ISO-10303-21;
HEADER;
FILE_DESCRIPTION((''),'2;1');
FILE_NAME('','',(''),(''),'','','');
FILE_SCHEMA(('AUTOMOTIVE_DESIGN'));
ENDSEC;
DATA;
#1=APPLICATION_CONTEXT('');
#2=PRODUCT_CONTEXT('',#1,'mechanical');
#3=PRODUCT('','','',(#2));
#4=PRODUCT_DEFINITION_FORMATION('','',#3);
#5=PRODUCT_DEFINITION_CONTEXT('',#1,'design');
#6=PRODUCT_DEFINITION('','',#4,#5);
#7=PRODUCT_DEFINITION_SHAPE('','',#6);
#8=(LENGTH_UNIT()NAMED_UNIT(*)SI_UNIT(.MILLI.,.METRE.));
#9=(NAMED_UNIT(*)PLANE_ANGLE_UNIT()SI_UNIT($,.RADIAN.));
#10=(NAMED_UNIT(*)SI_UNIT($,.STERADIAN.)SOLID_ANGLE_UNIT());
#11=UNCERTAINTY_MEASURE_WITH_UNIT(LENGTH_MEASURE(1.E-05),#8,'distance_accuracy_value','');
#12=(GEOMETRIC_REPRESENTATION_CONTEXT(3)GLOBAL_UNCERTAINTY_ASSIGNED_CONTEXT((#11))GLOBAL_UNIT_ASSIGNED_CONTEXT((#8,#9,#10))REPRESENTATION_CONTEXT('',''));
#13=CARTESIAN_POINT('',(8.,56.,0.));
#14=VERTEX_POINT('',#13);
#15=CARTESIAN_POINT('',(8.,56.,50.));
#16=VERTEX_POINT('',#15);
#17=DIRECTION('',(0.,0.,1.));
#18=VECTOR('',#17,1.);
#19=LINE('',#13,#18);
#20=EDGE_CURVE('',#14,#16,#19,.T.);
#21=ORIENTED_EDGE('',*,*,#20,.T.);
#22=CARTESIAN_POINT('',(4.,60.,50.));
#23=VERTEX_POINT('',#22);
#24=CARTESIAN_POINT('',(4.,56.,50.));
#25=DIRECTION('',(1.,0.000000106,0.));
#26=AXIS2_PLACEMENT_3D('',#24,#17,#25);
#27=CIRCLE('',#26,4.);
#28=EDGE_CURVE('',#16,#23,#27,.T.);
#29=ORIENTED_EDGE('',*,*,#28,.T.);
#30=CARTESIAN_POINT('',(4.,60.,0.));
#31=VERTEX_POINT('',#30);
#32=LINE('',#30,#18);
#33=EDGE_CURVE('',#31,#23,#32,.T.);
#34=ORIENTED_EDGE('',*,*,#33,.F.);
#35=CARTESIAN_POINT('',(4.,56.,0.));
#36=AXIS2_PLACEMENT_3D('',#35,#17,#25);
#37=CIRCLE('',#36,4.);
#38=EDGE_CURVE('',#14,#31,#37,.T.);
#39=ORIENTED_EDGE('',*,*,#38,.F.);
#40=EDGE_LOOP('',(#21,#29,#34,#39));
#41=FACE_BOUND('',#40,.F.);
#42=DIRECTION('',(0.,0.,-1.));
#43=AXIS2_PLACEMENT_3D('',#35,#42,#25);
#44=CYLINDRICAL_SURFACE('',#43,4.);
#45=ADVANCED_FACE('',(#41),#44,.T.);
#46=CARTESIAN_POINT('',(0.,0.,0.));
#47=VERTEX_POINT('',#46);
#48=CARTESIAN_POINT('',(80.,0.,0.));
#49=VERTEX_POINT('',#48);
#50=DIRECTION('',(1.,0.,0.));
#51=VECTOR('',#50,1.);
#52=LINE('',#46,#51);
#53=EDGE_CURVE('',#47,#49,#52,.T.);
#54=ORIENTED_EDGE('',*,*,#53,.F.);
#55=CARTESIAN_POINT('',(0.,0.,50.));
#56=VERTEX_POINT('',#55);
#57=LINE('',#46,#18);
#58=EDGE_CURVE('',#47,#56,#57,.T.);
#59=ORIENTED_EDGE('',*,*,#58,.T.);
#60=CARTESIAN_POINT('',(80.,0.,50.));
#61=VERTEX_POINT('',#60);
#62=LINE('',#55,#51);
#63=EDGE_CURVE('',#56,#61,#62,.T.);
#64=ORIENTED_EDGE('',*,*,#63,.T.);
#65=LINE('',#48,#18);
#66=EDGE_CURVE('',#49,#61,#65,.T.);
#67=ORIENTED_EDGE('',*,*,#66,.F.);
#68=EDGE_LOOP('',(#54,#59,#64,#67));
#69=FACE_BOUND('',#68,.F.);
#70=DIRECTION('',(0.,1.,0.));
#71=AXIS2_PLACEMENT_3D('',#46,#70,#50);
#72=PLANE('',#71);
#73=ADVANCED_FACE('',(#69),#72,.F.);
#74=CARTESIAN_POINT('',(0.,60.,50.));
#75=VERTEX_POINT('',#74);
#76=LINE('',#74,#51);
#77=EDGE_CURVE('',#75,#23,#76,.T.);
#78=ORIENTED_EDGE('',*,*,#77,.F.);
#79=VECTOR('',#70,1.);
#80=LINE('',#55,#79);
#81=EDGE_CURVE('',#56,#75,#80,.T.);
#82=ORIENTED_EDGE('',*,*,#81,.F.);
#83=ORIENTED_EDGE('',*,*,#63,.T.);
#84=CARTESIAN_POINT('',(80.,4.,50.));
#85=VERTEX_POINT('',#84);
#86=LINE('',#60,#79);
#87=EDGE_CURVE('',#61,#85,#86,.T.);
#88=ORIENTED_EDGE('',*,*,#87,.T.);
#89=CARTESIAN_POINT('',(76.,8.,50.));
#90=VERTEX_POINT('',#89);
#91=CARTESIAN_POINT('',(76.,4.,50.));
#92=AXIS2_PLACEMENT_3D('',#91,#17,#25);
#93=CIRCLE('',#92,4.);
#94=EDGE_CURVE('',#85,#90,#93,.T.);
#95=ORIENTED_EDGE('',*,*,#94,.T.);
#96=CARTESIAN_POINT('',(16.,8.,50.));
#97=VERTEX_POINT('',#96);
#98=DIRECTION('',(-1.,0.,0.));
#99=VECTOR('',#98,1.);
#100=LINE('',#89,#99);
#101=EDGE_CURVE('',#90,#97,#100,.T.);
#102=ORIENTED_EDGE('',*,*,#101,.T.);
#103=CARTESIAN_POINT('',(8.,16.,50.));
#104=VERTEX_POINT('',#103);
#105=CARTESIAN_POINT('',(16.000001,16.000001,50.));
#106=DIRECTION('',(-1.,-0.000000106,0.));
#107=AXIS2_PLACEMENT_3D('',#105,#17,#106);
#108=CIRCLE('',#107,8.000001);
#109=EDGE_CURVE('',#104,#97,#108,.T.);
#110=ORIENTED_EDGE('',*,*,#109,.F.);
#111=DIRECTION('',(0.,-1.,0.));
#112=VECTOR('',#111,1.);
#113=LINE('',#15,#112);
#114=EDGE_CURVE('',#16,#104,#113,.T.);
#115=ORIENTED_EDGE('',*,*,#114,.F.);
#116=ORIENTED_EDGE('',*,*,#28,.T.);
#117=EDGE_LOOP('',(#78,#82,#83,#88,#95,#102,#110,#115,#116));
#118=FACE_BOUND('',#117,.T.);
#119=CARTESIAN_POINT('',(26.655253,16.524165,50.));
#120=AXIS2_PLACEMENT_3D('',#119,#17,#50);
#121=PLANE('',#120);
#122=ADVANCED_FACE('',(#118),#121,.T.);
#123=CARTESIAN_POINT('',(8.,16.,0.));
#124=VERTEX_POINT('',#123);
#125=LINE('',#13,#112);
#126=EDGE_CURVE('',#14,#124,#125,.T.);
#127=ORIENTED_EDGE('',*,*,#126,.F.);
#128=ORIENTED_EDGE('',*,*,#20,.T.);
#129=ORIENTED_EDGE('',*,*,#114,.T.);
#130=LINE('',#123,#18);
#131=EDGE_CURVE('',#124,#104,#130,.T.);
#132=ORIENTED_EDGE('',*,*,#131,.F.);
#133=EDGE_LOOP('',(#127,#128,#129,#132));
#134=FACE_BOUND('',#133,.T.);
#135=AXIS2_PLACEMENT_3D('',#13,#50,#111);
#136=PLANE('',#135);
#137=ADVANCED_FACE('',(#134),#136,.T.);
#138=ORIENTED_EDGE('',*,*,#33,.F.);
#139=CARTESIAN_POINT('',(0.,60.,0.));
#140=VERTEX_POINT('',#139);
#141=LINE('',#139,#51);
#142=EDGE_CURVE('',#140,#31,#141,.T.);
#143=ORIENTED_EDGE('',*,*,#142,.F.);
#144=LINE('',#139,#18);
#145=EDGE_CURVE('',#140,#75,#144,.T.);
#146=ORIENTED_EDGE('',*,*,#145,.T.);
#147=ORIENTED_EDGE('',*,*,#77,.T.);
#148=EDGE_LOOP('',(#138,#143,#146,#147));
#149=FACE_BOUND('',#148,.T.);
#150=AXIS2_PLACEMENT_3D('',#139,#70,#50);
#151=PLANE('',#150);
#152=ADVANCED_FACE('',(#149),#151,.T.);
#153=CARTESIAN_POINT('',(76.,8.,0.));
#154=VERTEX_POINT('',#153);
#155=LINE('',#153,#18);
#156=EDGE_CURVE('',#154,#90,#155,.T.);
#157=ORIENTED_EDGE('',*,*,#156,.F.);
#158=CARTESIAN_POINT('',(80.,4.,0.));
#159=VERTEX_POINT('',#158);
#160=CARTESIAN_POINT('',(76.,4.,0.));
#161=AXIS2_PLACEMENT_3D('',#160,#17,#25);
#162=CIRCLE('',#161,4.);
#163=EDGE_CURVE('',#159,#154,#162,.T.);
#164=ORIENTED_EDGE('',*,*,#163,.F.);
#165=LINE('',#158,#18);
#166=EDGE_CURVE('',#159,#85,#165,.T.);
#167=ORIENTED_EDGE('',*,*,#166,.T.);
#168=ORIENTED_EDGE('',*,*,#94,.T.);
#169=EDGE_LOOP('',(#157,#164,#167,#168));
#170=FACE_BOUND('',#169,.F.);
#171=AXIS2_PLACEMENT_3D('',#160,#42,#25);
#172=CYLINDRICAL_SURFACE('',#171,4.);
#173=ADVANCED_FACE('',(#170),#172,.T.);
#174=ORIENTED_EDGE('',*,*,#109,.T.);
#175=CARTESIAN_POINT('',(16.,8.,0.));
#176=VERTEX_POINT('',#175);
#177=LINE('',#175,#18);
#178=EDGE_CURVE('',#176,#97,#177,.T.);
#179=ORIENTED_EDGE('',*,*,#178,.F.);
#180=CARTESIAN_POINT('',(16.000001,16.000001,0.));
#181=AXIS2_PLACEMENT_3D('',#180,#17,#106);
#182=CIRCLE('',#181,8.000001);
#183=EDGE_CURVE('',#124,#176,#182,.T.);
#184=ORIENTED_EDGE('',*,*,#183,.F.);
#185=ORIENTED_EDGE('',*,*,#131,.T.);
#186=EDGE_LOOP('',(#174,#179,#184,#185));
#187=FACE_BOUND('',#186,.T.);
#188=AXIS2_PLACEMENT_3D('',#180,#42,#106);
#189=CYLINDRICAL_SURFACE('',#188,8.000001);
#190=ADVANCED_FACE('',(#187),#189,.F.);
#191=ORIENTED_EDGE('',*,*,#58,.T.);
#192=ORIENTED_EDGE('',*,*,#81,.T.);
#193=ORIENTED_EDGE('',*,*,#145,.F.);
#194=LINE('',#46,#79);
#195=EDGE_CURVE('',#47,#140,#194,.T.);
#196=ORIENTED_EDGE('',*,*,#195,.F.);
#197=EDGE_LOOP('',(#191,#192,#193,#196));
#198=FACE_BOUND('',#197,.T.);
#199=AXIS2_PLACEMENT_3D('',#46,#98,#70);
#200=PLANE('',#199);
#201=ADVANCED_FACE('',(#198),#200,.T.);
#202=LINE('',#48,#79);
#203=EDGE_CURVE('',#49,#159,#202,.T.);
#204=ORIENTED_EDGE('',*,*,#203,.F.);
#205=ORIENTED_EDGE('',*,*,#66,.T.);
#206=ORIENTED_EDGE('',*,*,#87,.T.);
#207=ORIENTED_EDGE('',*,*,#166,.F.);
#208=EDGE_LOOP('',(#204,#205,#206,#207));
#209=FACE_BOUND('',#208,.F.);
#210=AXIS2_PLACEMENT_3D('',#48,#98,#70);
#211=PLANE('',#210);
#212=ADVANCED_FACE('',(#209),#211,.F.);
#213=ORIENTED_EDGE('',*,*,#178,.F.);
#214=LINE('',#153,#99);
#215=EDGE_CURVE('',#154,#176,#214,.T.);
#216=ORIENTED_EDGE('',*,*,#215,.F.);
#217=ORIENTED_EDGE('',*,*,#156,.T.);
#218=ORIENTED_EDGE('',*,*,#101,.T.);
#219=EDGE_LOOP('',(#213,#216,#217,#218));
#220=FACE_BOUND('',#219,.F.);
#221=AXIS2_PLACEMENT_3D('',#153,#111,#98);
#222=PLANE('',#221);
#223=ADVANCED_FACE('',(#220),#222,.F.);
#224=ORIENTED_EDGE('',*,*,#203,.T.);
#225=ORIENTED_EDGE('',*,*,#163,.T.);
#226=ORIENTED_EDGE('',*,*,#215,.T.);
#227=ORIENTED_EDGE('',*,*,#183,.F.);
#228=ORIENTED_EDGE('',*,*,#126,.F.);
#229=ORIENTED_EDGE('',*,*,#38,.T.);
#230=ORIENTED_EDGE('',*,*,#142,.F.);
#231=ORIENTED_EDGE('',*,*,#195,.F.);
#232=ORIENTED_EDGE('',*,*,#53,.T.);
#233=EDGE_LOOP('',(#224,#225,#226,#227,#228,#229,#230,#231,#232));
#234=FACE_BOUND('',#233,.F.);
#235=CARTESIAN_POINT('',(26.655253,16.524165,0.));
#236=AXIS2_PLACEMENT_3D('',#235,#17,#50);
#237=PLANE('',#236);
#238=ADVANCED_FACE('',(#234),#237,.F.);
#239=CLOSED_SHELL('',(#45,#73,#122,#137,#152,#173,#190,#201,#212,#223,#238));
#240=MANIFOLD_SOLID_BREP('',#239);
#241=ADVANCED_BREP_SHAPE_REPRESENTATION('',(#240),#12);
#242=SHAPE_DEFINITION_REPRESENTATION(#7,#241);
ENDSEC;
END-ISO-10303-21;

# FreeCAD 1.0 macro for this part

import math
import FreeCAD as App
import Part
import Sketcher
Q = App.Units.Quantity

doc = App.newDocument("Part")
params = doc.addObject("Spreadsheet::Sheet", "Params")
for row, (alias, value) in enumerate([
    ("sketch1_radius", "4 mm"),
    ("sketch1_radius2", "8.000001 mm"),
    ("sketch1_width", "80 mm"),
    ("sketch1_width2", "60 mm"),
    ("pad1_length", "50 mm"),
], start=1):
    params.set(f"A{row}", alias)
    params.set(f"B{row}", "=" + value)
    params.setAlias(f"B{row}", alias)

body = doc.addObject("PartDesign::Body", "Body")

sketch1 = body.newObject("Sketcher::SketchObject", "Sketch")
sketch1.AttachmentSupport = (doc.getObject("XY_Plane"), [""])
sketch1.MapMode = "FlatFace"
sketch1.addGeometry([
    Part.LineSegment(App.Vector(0, 0, 0), App.Vector(80, 0, 0)),
    Part.LineSegment(App.Vector(80, 0, 0), App.Vector(80, 4, 0)),
    Part.ArcOfCircle(Part.Circle(App.Vector(76, 4, 0), App.Vector(0, 0, 1), 4), math.radians(0), math.radians(90)),
    Part.LineSegment(App.Vector(76, 8, 0), App.Vector(16, 8, 0)),
    Part.ArcOfCircle(Part.Circle(App.Vector(16, 16, 0), App.Vector(0, 0, 1), 8), math.radians(-180), math.radians(-90)),
    Part.LineSegment(App.Vector(8, 16, 0), App.Vector(8, 56, 0)),
    Part.ArcOfCircle(Part.Circle(App.Vector(4, 56, 0), App.Vector(0, 0, 1), 4), math.radians(0), math.radians(90)),
    Part.LineSegment(App.Vector(4, 60, 0), App.Vector(0, 60, 0)),
    Part.LineSegment(App.Vector(0, 60, 0), App.Vector(0, 0, 0)),
], False)
sketch1.addConstraint([
    Sketcher.Constraint("Coincident", 0, 2, 1, 1),
    Sketcher.Constraint("Tangent", 1, 2, 2, 1),
    Sketcher.Constraint("Tangent", 2, 2, 3, 1),
    Sketcher.Constraint("Tangent", 3, 2, 4, 2),
    Sketcher.Constraint("Tangent", 4, 1, 5, 1),
    Sketcher.Constraint("Tangent", 5, 2, 6, 1),
    Sketcher.Constraint("Tangent", 6, 2, 7, 1),
    Sketcher.Constraint("Coincident", 7, 2, 8, 1),
    Sketcher.Constraint("Coincident", 8, 2, 0, 1),
    Sketcher.Constraint("Horizontal", 0),
    Sketcher.Constraint("Vertical", 1),
    Sketcher.Constraint("Horizontal", 3),
    Sketcher.Constraint("Vertical", 5),
    Sketcher.Constraint("Horizontal", 7),
    Sketcher.Constraint("Vertical", 8),
    Sketcher.Constraint("Coincident", 8, 2, -1, 1),
    Sketcher.Constraint("Equal", 2, 6),
    Sketcher.Constraint("Equal", 7, 1),
    Sketcher.Constraint("Equal", 3, 8),
    Sketcher.Constraint("Radius", 2, Q("4 mm")),
    Sketcher.Constraint("Radius", 4, Q("8.000001 mm")),
    Sketcher.Constraint("DistanceX", 0, 1, 0, 2, Q("80 mm")),
    Sketcher.Constraint("DistanceX", 3, 2, 3, 1, Q("60 mm")),
])
sketch1.setExpression("Constraints[19]", "Params.sketch1_radius")
sketch1.setExpression("Constraints[20]", "Params.sketch1_radius2")
sketch1.setExpression("Constraints[21]", "Params.sketch1_width")
sketch1.setExpression("Constraints[22]", "Params.sketch1_width2")
pad1 = body.newObject("PartDesign::Pad", "Pad")
pad1.Profile = sketch1
pad1.setExpression("Length", "Params.pad1_length")

doc.recompute()
